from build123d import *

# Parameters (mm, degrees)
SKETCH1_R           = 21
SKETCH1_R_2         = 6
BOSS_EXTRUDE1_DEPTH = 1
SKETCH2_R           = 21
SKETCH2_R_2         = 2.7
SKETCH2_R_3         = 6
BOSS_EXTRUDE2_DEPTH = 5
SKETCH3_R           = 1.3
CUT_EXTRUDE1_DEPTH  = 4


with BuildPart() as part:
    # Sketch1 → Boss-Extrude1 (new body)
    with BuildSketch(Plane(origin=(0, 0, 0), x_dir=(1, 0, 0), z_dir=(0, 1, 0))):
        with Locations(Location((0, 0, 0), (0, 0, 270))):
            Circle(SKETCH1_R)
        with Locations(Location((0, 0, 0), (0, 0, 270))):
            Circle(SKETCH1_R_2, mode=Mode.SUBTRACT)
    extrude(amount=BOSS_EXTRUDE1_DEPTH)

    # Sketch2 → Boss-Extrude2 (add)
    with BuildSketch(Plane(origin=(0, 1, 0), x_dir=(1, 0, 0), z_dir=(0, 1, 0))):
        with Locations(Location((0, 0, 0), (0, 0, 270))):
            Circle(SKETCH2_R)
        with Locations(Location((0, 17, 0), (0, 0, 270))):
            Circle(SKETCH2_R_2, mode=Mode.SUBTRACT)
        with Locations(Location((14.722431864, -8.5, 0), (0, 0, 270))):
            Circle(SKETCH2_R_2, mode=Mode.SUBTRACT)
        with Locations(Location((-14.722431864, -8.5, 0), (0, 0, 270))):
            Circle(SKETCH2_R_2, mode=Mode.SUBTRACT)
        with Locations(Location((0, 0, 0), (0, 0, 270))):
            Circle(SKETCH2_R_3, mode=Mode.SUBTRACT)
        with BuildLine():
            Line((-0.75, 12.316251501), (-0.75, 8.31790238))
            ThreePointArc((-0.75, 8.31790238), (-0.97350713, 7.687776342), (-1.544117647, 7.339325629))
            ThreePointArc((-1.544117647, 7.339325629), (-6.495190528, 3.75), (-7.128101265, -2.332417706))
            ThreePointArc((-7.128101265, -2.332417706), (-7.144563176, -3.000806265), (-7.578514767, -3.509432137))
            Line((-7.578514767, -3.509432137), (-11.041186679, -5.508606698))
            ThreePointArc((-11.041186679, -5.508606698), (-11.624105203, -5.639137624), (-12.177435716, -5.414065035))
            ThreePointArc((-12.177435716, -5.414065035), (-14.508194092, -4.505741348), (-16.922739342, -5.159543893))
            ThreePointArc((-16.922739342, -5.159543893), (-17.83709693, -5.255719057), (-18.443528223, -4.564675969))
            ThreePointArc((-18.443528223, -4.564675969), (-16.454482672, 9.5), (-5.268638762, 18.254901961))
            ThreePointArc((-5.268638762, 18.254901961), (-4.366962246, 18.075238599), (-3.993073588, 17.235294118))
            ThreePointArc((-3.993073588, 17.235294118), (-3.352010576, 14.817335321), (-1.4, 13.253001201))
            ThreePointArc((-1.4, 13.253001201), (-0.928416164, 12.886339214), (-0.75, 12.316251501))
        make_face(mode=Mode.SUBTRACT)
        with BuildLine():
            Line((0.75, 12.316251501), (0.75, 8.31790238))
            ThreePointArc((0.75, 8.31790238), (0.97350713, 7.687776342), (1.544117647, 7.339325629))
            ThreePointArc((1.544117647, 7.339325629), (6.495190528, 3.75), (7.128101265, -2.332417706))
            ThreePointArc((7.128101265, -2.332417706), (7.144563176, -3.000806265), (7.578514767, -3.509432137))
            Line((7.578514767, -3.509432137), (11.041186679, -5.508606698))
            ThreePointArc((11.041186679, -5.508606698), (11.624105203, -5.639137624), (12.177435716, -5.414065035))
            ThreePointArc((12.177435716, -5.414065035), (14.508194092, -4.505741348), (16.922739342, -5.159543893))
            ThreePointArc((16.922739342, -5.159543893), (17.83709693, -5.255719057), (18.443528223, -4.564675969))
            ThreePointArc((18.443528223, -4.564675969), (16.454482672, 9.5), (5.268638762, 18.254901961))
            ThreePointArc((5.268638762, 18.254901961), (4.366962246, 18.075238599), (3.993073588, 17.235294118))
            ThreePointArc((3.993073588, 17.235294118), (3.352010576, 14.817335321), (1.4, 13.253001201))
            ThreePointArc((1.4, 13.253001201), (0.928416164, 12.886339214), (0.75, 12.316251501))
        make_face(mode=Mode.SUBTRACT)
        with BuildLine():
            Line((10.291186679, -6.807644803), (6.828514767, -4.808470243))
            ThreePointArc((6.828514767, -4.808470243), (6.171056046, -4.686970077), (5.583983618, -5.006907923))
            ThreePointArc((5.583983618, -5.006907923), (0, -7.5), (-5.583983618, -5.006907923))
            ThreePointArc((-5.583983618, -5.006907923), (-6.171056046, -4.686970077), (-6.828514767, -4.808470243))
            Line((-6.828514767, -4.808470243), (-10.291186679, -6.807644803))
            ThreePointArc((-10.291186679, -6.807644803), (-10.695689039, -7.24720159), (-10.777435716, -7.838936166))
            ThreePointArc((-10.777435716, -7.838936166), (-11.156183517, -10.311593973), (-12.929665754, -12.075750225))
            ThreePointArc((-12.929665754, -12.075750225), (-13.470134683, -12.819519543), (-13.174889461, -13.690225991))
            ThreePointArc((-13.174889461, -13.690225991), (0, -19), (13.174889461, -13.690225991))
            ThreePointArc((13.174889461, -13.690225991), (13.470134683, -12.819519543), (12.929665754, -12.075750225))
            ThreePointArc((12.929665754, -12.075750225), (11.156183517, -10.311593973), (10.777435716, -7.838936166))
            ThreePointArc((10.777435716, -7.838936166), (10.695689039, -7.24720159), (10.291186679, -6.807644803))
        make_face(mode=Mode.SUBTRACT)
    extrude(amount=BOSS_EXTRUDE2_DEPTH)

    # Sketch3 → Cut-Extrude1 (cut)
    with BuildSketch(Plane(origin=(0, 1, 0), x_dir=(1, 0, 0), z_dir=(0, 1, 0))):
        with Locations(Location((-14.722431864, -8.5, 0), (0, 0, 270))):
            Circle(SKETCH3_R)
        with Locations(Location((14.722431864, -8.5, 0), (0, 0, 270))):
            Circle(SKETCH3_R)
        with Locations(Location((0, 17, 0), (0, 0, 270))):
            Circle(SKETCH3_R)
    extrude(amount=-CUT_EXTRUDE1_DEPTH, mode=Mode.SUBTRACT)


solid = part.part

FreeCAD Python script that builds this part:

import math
import FreeCAD as App
import Part
import Sketcher
Q = App.Units.Quantity

doc = App.newDocument("Part")
params = doc.addObject("Spreadsheet::Sheet", "Params")
for row, (alias, value) in enumerate([
    ("sketch1_diameter", "42 mm"),
    ("sketch1_diameter2", "12 mm"),
    ("pad1_length", "1 mm"),
    ("sketch2_diameter", "42 mm"),
    ("sketch2_diameter2", "12 mm"),
    ("sketch2_radius", "1 mm"),
    ("sketch2_radius2", "4 mm"),
    ("sketch2_radius3", "19 mm"),
    ("pad2_length", "5 mm"),
    ("sketch3_diameter", "2.6 mm"),
    ("pocket1_length", "4 mm"),
], start=1):
    params.set(f"A{row}", alias)
    params.set(f"B{row}", "=" + value)
    params.setAlias(f"B{row}", alias)

body = doc.addObject("PartDesign::Body", "Body")

# Sketch on XZ plane
sketch1 = doc.addObject("Sketcher::SketchObject", "Sketch")
body.addObject(sketch1)
sketch1.AttachmentSupport = (doc.XZ_Plane, [""])
sketch1.MapMode = "FlatFace"
sketch1.addGeometry(Part.Circle(App.Vector(0, 0, 0), App.Vector(0, 0, 1), 21), False)
sketch1.addGeometry(Part.Circle(App.Vector(0, 0, 0), App.Vector(0, 0, 1), 6), False)
sketch1.addConstraint(Sketcher.Constraint("Coincident", 0, 3, -1, 1))
sketch1.addConstraint(Sketcher.Constraint("Coincident", 1, 3, -1, 1))
sketch1.addConstraint(Sketcher.Constraint("Diameter", 0, 42.0))
sketch1.addConstraint(Sketcher.Constraint("Diameter", 1, 12.0))
sketch1.setExpression("Constraints[2]", "Params.sketch1_diameter")
sketch1.setExpression("Constraints[3]", "Params.sketch1_diameter2")
pad1 = doc.addObject("PartDesign::Pad", "Pad")
body.addObject(pad1)
pad1.Profile = sketch1
pad1.setExpression("Length", "Params.pad1_length")
pad1.Reversed = True

# Sketch on XZ plane
sketch2 = doc.addObject("Sketcher::SketchObject", "Sketch001")
body.addObject(sketch2)
sketch2.AttachmentSupport = (doc.XZ_Plane, [""])
sketch2.MapMode = "FlatFace"
sketch2.AttachmentOffset = App.Placement(App.Vector(0, 0, -1), App.Rotation())
sketch2.addGeometry(Part.Circle(App.Vector(0, 0, 0), App.Vector(0, 0, 1), 21), False)
sketch2.addGeometry(Part.ArcOfCircle(Part.Circle(App.Vector(-1.75, -12.316252, 0), App.Vector(0, 0, 1), 1), math.radians(-69.512685), math.radians(0)), False)
sketch2.addGeometry(Part.LineSegment(App.Vector(-0.75, -12.316252, 0), App.Vector(-0.75, -8.317902, 0)), False)
sketch2.addGeometry(Part.ArcOfCircle(Part.Circle(App.Vector(-1.75, -8.317902, 0), App.Vector(0, 0, 1), 1), math.radians(0), math.radians(78.118844)), False)
sketch2.addGeometry(Part.ArcOfCircle(Part.Circle(App.Vector(0, 0, 0), App.Vector(0, 0, 1), 7.5), math.radians(161.881156), math.radians(258.118844)), False)
sketch2.addGeometry(Part.ArcOfCircle(Part.Circle(App.Vector(-8.078515, 2.643407, 0), App.Vector(0, 0, 1), 1), math.radians(-18.118844), math.radians(60)), False)
sketch2.addGeometry(Part.LineSegment(App.Vector(-7.578515, 3.509432, 0), App.Vector(-11.041187, 5.508607, 0)), False)
sketch2.addGeometry(Part.ArcOfCircle(Part.Circle(App.Vector(-11.541187, 4.642581, 0), App.Vector(0, 0, 1), 1), math.radians(60), math.radians(129.512685)), False)
sketch2.addGeometry(Part.ArcOfCircle(Part.Circle(App.Vector(-14.722432, 8.5, 0), App.Vector(0, 0, 1), 4), math.radians(-123.372287), math.radians(-50.487315)), False)
sketch2.addGeometry(Part.ArcOfCircle(Part.Circle(App.Vector(-17.472816, 4.32443, 0), App.Vector(0, 0, 1), 1), math.radians(56.627713), math.radians(166.098934)), False)
sketch2.addGeometry(Part.ArcOfCircle(Part.Circle(App.Vector(0, 0, 0), App.Vector(0, 0, 1), 19), math.radians(166.098934), math.radians(253.901066)), False)
sketch2.addGeometry(Part.ArcOfCircle(Part.Circle(App.Vector(-4.991342, -17.294118, 0), App.Vector(0, 0, 1), 1), math.radians(-106.098934), math.radians(3.372287)), False)
sketch2.addGeometry(Part.ArcOfCircle(Part.Circle(App.Vector(0, -17, 0), App.Vector(0, 0, 1), 4), math.radians(110.487315), math.radians(183.372287)), False)
sketch2.addGeometry(Part.Circle(App.Vector(0, -17, 0), App.Vector(0, 0, 1), 2.7), False)
sketch2.addGeometry(Part.Circle(App.Vector(-14.722432, 8.5, 0), App.Vector(0, 0, 1), 2.7), False)
sketch2.addGeometry(Part.LineSegment(App.Vector(0.75, -8.317902, 0), App.Vector(0.75, -12.316252, 0)), False)
sketch2.addGeometry(Part.ArcOfCircle(Part.Circle(App.Vector(1.75, -12.316252, 0), App.Vector(0, 0, 1), 1), math.radians(180), math.radians(249.512685)), False)
sketch2.addGeometry(Part.ArcOfCircle(Part.Circle(App.Vector(0, -17, 0), App.Vector(0, 0, 1), 4), math.radians(-3.372287), math.radians(69.512685)), False)
sketch2.addGeometry(Part.ArcOfCircle(Part.Circle(App.Vector(4.991342, -17.294118, 0), App.Vector(0, 0, 1), 1), math.radians(176.627713), math.radians(286.098934)), False)
sketch2.addGeometry(Part.ArcOfCircle(Part.Circle(App.Vector(0, 0, 0), App.Vector(0, 0, 1), 19), math.radians(-73.901066), math.radians(13.901066)), False)
sketch2.addGeometry(Part.ArcOfCircle(Part.Circle(App.Vector(17.472816, 4.32443, 0), App.Vector(0, 0, 1), 1), math.radians(13.901066), math.radians(123.372287)), False)
sketch2.addGeometry(Part.ArcOfCircle(Part.Circle(App.Vector(14.722432, 8.5, 0), App.Vector(0, 0, 1), 4), math.radians(-129.512685), math.radians(-56.627713)), False)
sketch2.addGeometry(Part.ArcOfCircle(Part.Circle(App.Vector(11.541187, 4.642581, 0), App.Vector(0, 0, 1), 1), math.radians(50.487315), math.radians(120)), False)
sketch2.addGeometry(Part.LineSegment(App.Vector(11.041187, 5.508607, 0), App.Vector(7.578515, 3.509432, 0)), False)
sketch2.addGeometry(Part.ArcOfCircle(Part.Circle(App.Vector(8.078515, 2.643407, 0), App.Vector(0, 0, 1), 1), math.radians(120), math.radians(198.118844)), False)
sketch2.addGeometry(Part.ArcOfCircle(Part.Circle(App.Vector(0, 0, 0), App.Vector(0, 0, 1), 7.5), math.radians(-78.118844), math.radians(18.118844)), False)
sketch2.addGeometry(Part.ArcOfCircle(Part.Circle(App.Vector(1.75, -8.317902, 0), App.Vector(0, 0, 1), 1), math.radians(101.881156), math.radians(180)), False)
sketch2.addGeometry(Part.Circle(App.Vector(0, 0, 0), App.Vector(0, 0, 1), 6), False)
sketch2.addGeometry(Part.LineSegment(App.Vector(6.828515, 4.80847, 0), App.Vector(10.291187, 6.807645, 0)), False)
sketch2.addGeometry(Part.ArcOfCircle(Part.Circle(App.Vector(9.791187, 7.67367, 0), App.Vector(0, 0, 1), 1), math.radians(-60), math.radians(9.512685)), False)
sketch2.addGeometry(Part.ArcOfCircle(Part.Circle(App.Vector(14.722432, 8.5, 0), App.Vector(0, 0, 1), 4), math.radians(116.627713), math.radians(189.512685)), False)
sketch2.addGeometry(Part.ArcOfCircle(Part.Circle(App.Vector(12.481474, 12.969688, 0), App.Vector(0, 0, 1), 1), math.radians(-63.372287), math.radians(46.098934)), False)
sketch2.addGeometry(Part.ArcOfCircle(Part.Circle(App.Vector(0, 0, 0), App.Vector(0, 0, 1), 19), math.radians(46.098934), math.radians(133.901066)), False)
sketch2.addGeometry(Part.ArcOfCircle(Part.Circle(App.Vector(-12.481474, 12.969688, 0), App.Vector(0, 0, 1), 1), math.radians(133.901066), math.radians(243.372287)), False)
sketch2.addGeometry(Part.ArcOfCircle(Part.Circle(App.Vector(-14.722432, 8.5, 0), App.Vector(0, 0, 1), 4), math.radians(-9.512685), math.radians(63.372287)), False)
sketch2.addGeometry(Part.ArcOfCircle(Part.Circle(App.Vector(-9.791187, 7.67367, 0), App.Vector(0, 0, 1), 1), math.radians(170.487315), math.radians(240)), False)
sketch2.addGeometry(Part.LineSegment(App.Vector(-10.291187, 6.807645, 0), App.Vector(-6.828515, 4.80847, 0)), False)
sketch2.addGeometry(Part.ArcOfCircle(Part.Circle(App.Vector(-6.328515, 5.674496, 0), App.Vector(0, 0, 1), 1), math.radians(-120), math.radians(-41.881156)), False)
sketch2.addGeometry(Part.ArcOfCircle(Part.Circle(App.Vector(0, 0, 0), App.Vector(0, 0, 1), 7.5), math.radians(41.881156), math.radians(138.118844)), False)
sketch2.addGeometry(Part.ArcOfCircle(Part.Circle(App.Vector(6.328515, 5.674496, 0), App.Vector(0, 0, 1), 1), math.radians(-138.118844), math.radians(-60)), False)
sketch2.addGeometry(Part.Circle(App.Vector(14.722432, 8.5, 0), App.Vector(0, 0, 1), 2.7), False)
sketch2.addConstraint(Sketcher.Constraint("Tangent", 1, 2, 2, 1))
sketch2.addConstraint(Sketcher.Constraint("Tangent", 2, 2, 3, 1))
sketch2.addConstraint(Sketcher.Constraint("Tangent", 3, 2, 4, 2))
sketch2.addConstraint(Sketcher.Constraint("Tangent", 4, 1, 5, 1))
sketch2.addConstraint(Sketcher.Constraint("Tangent", 5, 2, 6, 1))
sketch2.addConstraint(Sketcher.Constraint("Tangent", 6, 2, 7, 1))
sketch2.addConstraint(Sketcher.Constraint("Tangent", 7, 2, 8, 2))
sketch2.addConstraint(Sketcher.Constraint("Tangent", 8, 1, 9, 1))
sketch2.addConstraint(Sketcher.Constraint("Tangent", 9, 2, 10, 1))
sketch2.addConstraint(Sketcher.Constraint("Tangent", 10, 2, 11, 1))
sketch2.addConstraint(Sketcher.Constraint("Tangent", 11, 2, 12, 2))
sketch2.addConstraint(Sketcher.Constraint("Tangent", 12, 1, 1, 1))
sketch2.addConstraint(Sketcher.Constraint("Tangent", 15, 2, 16, 1))
sketch2.addConstraint(Sketcher.Constraint("Tangent", 16, 2, 17, 2))
sketch2.addConstraint(Sketcher.Constraint("Tangent", 17, 1, 18, 1))
sketch2.addConstraint(Sketcher.Constraint("Tangent", 18, 2, 19, 1))
sketch2.addConstraint(Sketcher.Constraint("Tangent", 19, 2, 20, 1))
sketch2.addConstraint(Sketcher.Constraint("Tangent", 20, 2, 21, 2))
sketch2.addConstraint(Sketcher.Constraint("Tangent", 21, 1, 22, 1))
sketch2.addConstraint(Sketcher.Constraint("Tangent", 22, 2, 23, 1))
sketch2.addConstraint(Sketcher.Constraint("Tangent", 23, 2, 24, 1))
sketch2.addConstraint(Sketcher.Constraint("Tangent", 24, 2, 25, 2))
sketch2.addConstraint(Sketcher.Constraint("Tangent", 25, 1, 26, 1))
sketch2.addConstraint(Sketcher.Constraint("Tangent", 26, 2, 15, 1))
sketch2.addConstraint(Sketcher.Constraint("Tangent", 28, 2, 29, 1))
sketch2.addConstraint(Sketcher.Constraint("Tangent", 29, 2, 30, 2))
sketch2.addConstraint(Sketcher.Constraint("Tangent", 30, 1, 31, 1))
sketch2.addConstraint(Sketcher.Constraint("Tangent", 31, 2, 32, 1))
sketch2.addConstraint(Sketcher.Constraint("Tangent", 32, 2, 33, 1))
sketch2.addConstraint(Sketcher.Constraint("Tangent", 33, 2, 34, 2))
sketch2.addConstraint(Sketcher.Constraint("Tangent", 34, 1, 35, 1))
sketch2.addConstraint(Sketcher.Constraint("Tangent", 35, 2, 36, 1))
sketch2.addConstraint(Sketcher.Constraint("Tangent", 36, 2, 37, 1))
sketch2.addConstraint(Sketcher.Constraint("Tangent", 37, 2, 38, 2))
sketch2.addConstraint(Sketcher.Constraint("Tangent", 38, 1, 39, 1))
sketch2.addConstraint(Sketcher.Constraint("Tangent", 39, 2, 28, 1))
sketch2.addConstraint(Sketcher.Constraint("Vertical", 2))
sketch2.addConstraint(Sketcher.Constraint("Vertical", 15))
sketch2.addConstraint(Sketcher.Constraint("Coincident", 0, 3, -1, 1))
sketch2.addConstraint(Sketcher.Constraint("Coincident", 4, 3, -1, 1))
sketch2.addConstraint(Sketcher.Constraint("Coincident", 10, 3, -1, 1))
sketch2.addConstraint(Sketcher.Constraint("Coincident", 19, 3, -1, 1))
sketch2.addConstraint(Sketcher.Constraint("Coincident", 25, 3, -1, 1))
sketch2.addConstraint(Sketcher.Constraint("Coincident", 27, 3, -1, 1))
sketch2.addConstraint(Sketcher.Constraint("Coincident", 32, 3, -1, 1))
sketch2.addConstraint(Sketcher.Constraint("Coincident", 38, 3, -1, 1))
sketch2.addConstraint(Sketcher.Constraint("Coincident", 13, 3, 12, 3))
sketch2.addConstraint(Sketcher.Constraint("Coincident", 14, 3, 8, 3))
sketch2.addConstraint(Sketcher.Constraint("Coincident", 17, 3, 12, 3))
sketch2.addConstraint(Sketcher.Constraint("Coincident", 30, 3, 21, 3))
sketch2.addConstraint(Sketcher.Constraint("Coincident", 34, 3, 8, 3))
sketch2.addConstraint(Sketcher.Constraint("Coincident", 40, 3, 21, 3))
sketch2.addConstraint(Sketcher.Constraint("Equal", 1, 3))
sketch2.addConstraint(Sketcher.Constraint("Equal", 3, 5))
sketch2.addConstraint(Sketcher.Constraint("Equal", 5, 7))
sketch2.addConstraint(Sketcher.Constraint("Equal", 7, 9))
sketch2.addConstraint(Sketcher.Constraint("Equal", 9, 11))
sketch2.addConstraint(Sketcher.Constraint("Equal", 8, 12))
sketch2.addConstraint(Sketcher.Constraint("Equal", 13, 14))
sketch2.addConstraint(Sketcher.Constraint("Equal", 11, 16))
sketch2.addConstraint(Sketcher.Constraint("Equal", 12, 17))
sketch2.addConstraint(Sketcher.Constraint("Equal", 16, 18))
sketch2.addConstraint(Sketcher.Constraint("Equal", 10, 19))
sketch2.addConstraint(Sketcher.Constraint("Equal", 18, 20))
sketch2.addConstraint(Sketcher.Constraint("Equal", 17, 21))
sketch2.addConstraint(Sketcher.Constraint("Equal", 20, 22))
sketch2.addConstraint(Sketcher.Constraint("Equal", 22, 24))
sketch2.addConstraint(Sketcher.Constraint("Equal", 4, 25))
sketch2.addConstraint(Sketcher.Constraint("Equal", 24, 26))
sketch2.addConstraint(Sketcher.Constraint("Equal", 26, 29))
sketch2.addConstraint(Sketcher.Constraint("Equal", 21, 30))
sketch2.addConstraint(Sketcher.Constraint("Equal", 29, 31))
sketch2.addConstraint(Sketcher.Constraint("Equal", 19, 32))
sketch2.addConstraint(Sketcher.Constraint("Equal", 31, 33))
sketch2.addConstraint(Sketcher.Constraint("Equal", 30, 34))
sketch2.addConstraint(Sketcher.Constraint("Equal", 33, 35))
sketch2.addConstraint(Sketcher.Constraint("Equal", 35, 37))
sketch2.addConstraint(Sketcher.Constraint("Equal", 25, 38))
sketch2.addConstraint(Sketcher.Constraint("Equal", 37, 39))
sketch2.addConstraint(Sketcher.Constraint("Equal", 14, 40))
sketch2.addConstraint(Sketcher.Constraint("Symmetric", 1, 3, 16, 3, -2))
sketch2.addConstraint(Sketcher.Constraint("Symmetric", 8, 3, 21, 3, -2))
sketch2.addConstraint(Sketcher.Constraint("Symmetric", 6, 2, 22, 2, -2))
sketch2.addConstraint(Sketcher.Constraint("Symmetric", 28, 2, 35, 2, -2))
sketch2.addConstraint(Sketcher.Constraint("Parallel", 23, 28))
sketch2.addConstraint(Sketcher.Constraint("Equal", 23, 28))
sketch2.addConstraint(Sketcher.Constraint("Diameter", 0, 42.0))
sketch2.addConstraint(Sketcher.Constraint("Diameter", 27, 12.0))
sketch2.addConstraint(Sketcher.Constraint("Radius", 1, 1.0))
sketch2.addConstraint(Sketcher.Constraint("Radius", 8, 4.0))
sketch2.addConstraint(Sketcher.Constraint("Radius", 10, 19.0))
sketch2.addConstraint(Sketcher.Constraint("Diameter", 13, 5.4))
sketch2.addConstraint(Sketcher.Constraint("Radius", 4, 7.5))
sketch2.addConstraint(Sketcher.Constraint("Angle", 6, Q("150 deg")))
sketch2.addConstraint(Sketcher.Constraint("DistanceY", 12, 3, -1, 1, 17.0))
sketch2.addConstraint(Sketcher.Constraint("DistanceY", -1, 1, 8, 3, 8.5))
sketch2.addConstraint(Sketcher.Constraint("DistanceX", 12, 1, -1, 1, 1.4))
sketch2.addConstraint(Sketcher.Constraint("DistanceX", 4, 1, -1, 1, 7.128101))
sketch2.addConstraint(Sketcher.Constraint("Distance", 6, 3.998349))
sketch2.setExpression("Constraints[86]", "Params.sketch2_diameter")
sketch2.setExpression("Constraints[87]", "Params.sketch2_diameter2")
sketch2.setExpression("Constraints[88]", "Params.sketch2_radius")
sketch2.setExpression("Constraints[89]", "Params.sketch2_radius2")
sketch2.setExpression("Constraints[90]", "Params.sketch2_radius3")
pad2 = doc.addObject("PartDesign::Pad", "Pad001")
body.addObject(pad2)
pad2.Profile = sketch2
pad2.setExpression("Length", "Params.pad2_length")
pad2.Reversed = True

# Sketch on XZ plane
sketch3 = doc.addObject("Sketcher::SketchObject", "Sketch002")
body.addObject(sketch3)
sketch3.AttachmentSupport = (doc.XZ_Plane, [""])
sketch3.MapMode = "FlatFace"
sketch3.AttachmentOffset = App.Placement(App.Vector(0, 0, -1), App.Rotation())
sketch3.addGeometry(Part.Circle(App.Vector(-14.722432, 8.5, 0), App.Vector(0, 0, 1), 1.3), False)
sketch3.addGeometry(Part.Circle(App.Vector(14.722432, 8.5, 0), App.Vector(0, 0, 1), 1.3), False)
sketch3.addGeometry(Part.Circle(App.Vector(0, -17, 0), App.Vector(0, 0, 1), 1.3), False)
sketch3.addConstraint(Sketcher.Constraint("Equal", 0, 1))
sketch3.addConstraint(Sketcher.Constraint("Equal", 1, 2))
sketch3.addConstraint(Sketcher.Constraint("Symmetric", 0, 3, 1, 3, -2))
sketch3.addConstraint(Sketcher.Constraint("PointOnObject", 2, 3, -2))
sketch3.addConstraint(Sketcher.Constraint("Diameter", 0, 2.6))
sketch3.addConstraint(Sketcher.Constraint("DistanceY", 2, 3, -1, 1, 17.0))
sketch3.addConstraint(Sketcher.Constraint("DistanceY", -1, 1, 0, 3, 8.5))
sketch3.addConstraint(Sketcher.Constraint("DistanceX", 0, 3, -1, 1, 14.722432))
sketch3.setExpression("Constraints[4]", "Params.sketch3_diameter")
pocket1 = doc.addObject("PartDesign::Pocket", "Pocket")
body.addObject(pocket1)
pocket1.Profile = sketch3
pocket1.setExpression("Length", "Params.pocket1_length")
pocket1.Reversed = True

doc.recompute()
